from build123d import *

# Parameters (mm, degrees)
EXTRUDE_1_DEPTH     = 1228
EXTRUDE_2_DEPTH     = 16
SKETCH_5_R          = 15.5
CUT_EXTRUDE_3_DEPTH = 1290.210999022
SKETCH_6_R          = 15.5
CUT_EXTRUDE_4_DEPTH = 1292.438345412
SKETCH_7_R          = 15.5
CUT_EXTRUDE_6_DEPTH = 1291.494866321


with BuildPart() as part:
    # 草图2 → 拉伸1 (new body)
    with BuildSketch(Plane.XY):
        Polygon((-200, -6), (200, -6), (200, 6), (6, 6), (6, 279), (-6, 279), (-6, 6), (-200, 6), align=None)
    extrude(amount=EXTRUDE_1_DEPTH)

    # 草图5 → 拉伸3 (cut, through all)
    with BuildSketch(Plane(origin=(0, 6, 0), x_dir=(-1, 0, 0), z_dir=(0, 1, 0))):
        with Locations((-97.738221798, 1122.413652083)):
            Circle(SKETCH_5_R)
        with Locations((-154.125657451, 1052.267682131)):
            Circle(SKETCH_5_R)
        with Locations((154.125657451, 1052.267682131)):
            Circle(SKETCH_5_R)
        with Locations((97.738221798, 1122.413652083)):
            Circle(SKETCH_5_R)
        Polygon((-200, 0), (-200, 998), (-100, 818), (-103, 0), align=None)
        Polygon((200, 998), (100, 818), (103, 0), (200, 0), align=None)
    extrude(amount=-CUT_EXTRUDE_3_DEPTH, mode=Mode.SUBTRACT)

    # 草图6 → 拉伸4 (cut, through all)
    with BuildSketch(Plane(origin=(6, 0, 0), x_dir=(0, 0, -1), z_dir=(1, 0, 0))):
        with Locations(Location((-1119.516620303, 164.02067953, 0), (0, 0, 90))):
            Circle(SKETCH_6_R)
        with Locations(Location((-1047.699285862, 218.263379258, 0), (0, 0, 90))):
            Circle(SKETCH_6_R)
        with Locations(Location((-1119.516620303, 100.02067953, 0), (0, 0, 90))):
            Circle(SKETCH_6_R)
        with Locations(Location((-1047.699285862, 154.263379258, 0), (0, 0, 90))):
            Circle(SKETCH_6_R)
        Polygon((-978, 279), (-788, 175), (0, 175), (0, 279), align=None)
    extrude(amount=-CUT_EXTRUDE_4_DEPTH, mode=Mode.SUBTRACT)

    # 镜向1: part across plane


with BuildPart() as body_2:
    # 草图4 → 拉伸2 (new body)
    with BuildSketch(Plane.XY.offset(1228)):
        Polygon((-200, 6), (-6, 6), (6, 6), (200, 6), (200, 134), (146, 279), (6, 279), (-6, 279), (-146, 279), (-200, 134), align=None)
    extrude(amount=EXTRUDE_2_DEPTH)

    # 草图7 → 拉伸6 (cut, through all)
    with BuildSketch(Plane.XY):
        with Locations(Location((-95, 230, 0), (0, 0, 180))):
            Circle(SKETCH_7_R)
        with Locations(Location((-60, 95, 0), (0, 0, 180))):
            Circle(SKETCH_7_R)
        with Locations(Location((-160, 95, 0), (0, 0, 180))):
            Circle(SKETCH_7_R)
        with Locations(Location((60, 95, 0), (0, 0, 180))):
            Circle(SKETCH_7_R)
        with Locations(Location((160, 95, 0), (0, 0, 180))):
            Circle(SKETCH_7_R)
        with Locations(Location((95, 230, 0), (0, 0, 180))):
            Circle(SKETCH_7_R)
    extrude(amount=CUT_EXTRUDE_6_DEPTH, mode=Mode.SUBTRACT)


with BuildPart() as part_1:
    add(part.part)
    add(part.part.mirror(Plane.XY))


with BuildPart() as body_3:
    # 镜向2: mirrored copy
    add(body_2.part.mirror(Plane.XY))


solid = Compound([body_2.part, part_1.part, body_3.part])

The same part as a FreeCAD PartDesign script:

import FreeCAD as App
import Part
import Sketcher

V = App.Vector


def add_polygon(sketch, points):
    """Adds a closed chain of lines whose ends are joined by coincident constraints."""
    first, n = sketch.GeometryCount, len(points)
    for a, b in zip(points, points[1:] + points[:1]):
        sketch.addGeometry(Part.LineSegment(App.Vector(*a, 0), App.Vector(*b, 0)), False)
    for i in range(n):
        sketch.addConstraint(Sketcher.Constraint("Coincident", first + i, 2, first + (i + 1) % n, 1))

doc = App.newDocument("Part")
params = doc.addObject("Spreadsheet::Sheet", "Params")
for row, (alias, value) in enumerate([
    ("sketch1_width", "400 mm"),
    ("sketch1_width2", "194 mm"),
    ("sketch1_height", "273 mm"),
    ("pad1_length", "1228 mm"),
    ("sketch2_diameter", "31 mm"),
    ("sketch2_width", "97 mm"),
    ("sketch2_height", "998 mm"),
    ("sketch3_diameter", "31 mm"),
    ("sketch3_width", "104 mm"),
    ("sketch3_height", "788 mm"),
    ("sketch3_height2", "978 mm"),
    ("sketch4_width", "400 mm"),
    ("sketch4_width2", "292 mm"),
    ("sketch4_height", "128 mm"),
    ("pad2_length", "16 mm"),
    ("sketch5_diameter", "31 mm"),
], start=1):
    params.set(f"A{row}", alias)
    params.set(f"B{row}", "=" + value)
    params.setAlias(f"B{row}", alias)

body = doc.addObject("PartDesign::Body", "Body")

# Sketch on XY plane
sketch1 = body.newObject("Sketcher::SketchObject", "Sketch")
sketch1.AttachmentSupport = (doc.getObject("XY_Plane"), [""])
sketch1.MapMode = "FlatFace"
add_polygon(sketch1, [(-200, -6), (200, -6), (200, 6), (6, 6), (6, 279), (-6, 279), (-6, 6), (-200, 6)])  # lines 0-7
sketch1.addConstraint(Sketcher.Constraint("Horizontal", 0))
sketch1.addConstraint(Sketcher.Constraint("Vertical", 1))
sketch1.addConstraint(Sketcher.Constraint("Horizontal", 2))
sketch1.addConstraint(Sketcher.Constraint("Vertical", 3))
sketch1.addConstraint(Sketcher.Constraint("Horizontal", 4))
sketch1.addConstraint(Sketcher.Constraint("Vertical", 5))
sketch1.addConstraint(Sketcher.Constraint("Horizontal", 6))
sketch1.addConstraint(Sketcher.Constraint("Vertical", 7))
sketch1.addConstraint(Sketcher.Constraint("Symmetric", 0, 2, 6, 2, -1, 1))
sketch1.addConstraint(Sketcher.Constraint("Symmetric", 2, 2, 5, 2, -2))
sketch1.addConstraint(Sketcher.Constraint("Equal", 4, 1))
sketch1.addConstraint(Sketcher.Constraint("DistanceX", 0, 1, 0, 2, 400.0))
sketch1.addConstraint(Sketcher.Constraint("DistanceX", 2, 2, 2, 1, 194.0))
sketch1.addConstraint(Sketcher.Constraint("DistanceY", 3, 1, 3, 2, 273.0))
sketch1.setExpression("Constraints[19]", "Params.sketch1_width")
sketch1.setExpression("Constraints[20]", "Params.sketch1_width2")
sketch1.setExpression("Constraints[21]", "Params.sketch1_height")
pad1 = body.newObject("PartDesign::Pad", "Pad")
pad1.Profile = sketch1
pad1.setExpression("Length", "Params.pad1_length")

# Sketch on XZ plane
sketch2 = body.newObject("Sketcher::SketchObject", "Sketch001")
sketch2.AttachmentSupport = (doc.getObject("XZ_Plane"), [""])
sketch2.MapMode = "FlatFace"
sketch2.AttachmentOffset = App.Placement(V(0, 0, -6), App.Rotation())
sketch2.addGeometry(Part.Circle(V(97.738222, 1122.413652, 0), V(0, 0, 1), 15.5), False)  # 0
sketch2.addGeometry(Part.Circle(V(154.125657, 1052.267682, 0), V(0, 0, 1), 15.5), False)  # 1
sketch2.addGeometry(Part.Circle(V(-154.125657, 1052.267682, 0), V(0, 0, 1), 15.5), False)  # 2
sketch2.addGeometry(Part.Circle(V(-97.738222, 1122.413652, 0), V(0, 0, 1), 15.5), False)  # 3
add_polygon(sketch2, [(200, 998), (200, 0), (103, 0), (100, 818)])  # lines 4-7
add_polygon(sketch2, [(-200, 998), (-100, 818), (-103, 0), (-200, 0)])  # lines 8-11
sketch2.addConstraint(Sketcher.Constraint("Vertical", 4))
sketch2.addConstraint(Sketcher.Constraint("Horizontal", 5))
sketch2.addConstraint(Sketcher.Constraint("Horizontal", 10))
sketch2.addConstraint(Sketcher.Constraint("Vertical", 11))
sketch2.addConstraint(Sketcher.Constraint("Equal", 0, 1))
sketch2.addConstraint(Sketcher.Constraint("Equal", 1, 2))
sketch2.addConstraint(Sketcher.Constraint("Equal", 2, 3))
sketch2.addConstraint(Sketcher.Constraint("Symmetric", 5, 2, 9, 2, -1, 1))
sketch2.addConstraint(Sketcher.Constraint("Symmetric", 1, 3, 2, 3, -2))
sketch2.addConstraint(Sketcher.Constraint("Symmetric", 0, 3, 3, 3, -2))
sketch2.addConstraint(Sketcher.Constraint("Symmetric", 6, 2, 8, 2, -2))
sketch2.addConstraint(Sketcher.Constraint("Symmetric", 4, 2, 10, 2, -2))
sketch2.addConstraint(Sketcher.Constraint("Horizontal", 7, 2, 11, 2))
sketch2.addConstraint(Sketcher.Constraint("Diameter", 0, 31.0))
sketch2.addConstraint(Sketcher.Constraint("DistanceX", 5, 2, 5, 1, 97.0))
sketch2.addConstraint(Sketcher.Constraint("DistanceY", 4, 2, 4, 1, 998.0))
sketch2.addConstraint(Sketcher.Constraint("DistanceX", -1, 1, 4, 2, 200.0))
sketch2.addConstraint(Sketcher.Constraint("DistanceX", -1, 1, 6, 2, 100.0))
sketch2.addConstraint(Sketcher.Constraint("DistanceY", -1, 1, 6, 2, 818.0))
sketch2.addConstraint(Sketcher.Constraint("DistanceX", -1, 1, 0, 3, 97.738222))
sketch2.addConstraint(Sketcher.Constraint("DistanceY", 1, 3, 0, 3, 70.14597))
sketch2.addConstraint(Sketcher.Constraint("DistanceX", 2, 3, 0, 3, 251.863879))
sketch2.addConstraint(Sketcher.Constraint("DistanceY", -1, 1, 0, 3, 1122.413652))
sketch2.setExpression("Constraints[21]", "Params.sketch2_diameter")
sketch2.setExpression("Constraints[22]", "Params.sketch2_width")
sketch2.setExpression("Constraints[23]", "Params.sketch2_height")
pocket1 = body.newObject("PartDesign::Pocket", "Pocket")
pocket1.Profile = sketch2
pocket1.Type = "ThroughAll"
pocket1.Reversed = True

# Sketch on YZ plane
sketch3 = body.newObject("Sketcher::SketchObject", "Sketch002")
sketch3.AttachmentSupport = (doc.getObject("YZ_Plane"), [""])
sketch3.MapMode = "FlatFace"
sketch3.AttachmentOffset = App.Placement(V(0, 0, 6), App.Rotation())
sketch3.addGeometry(Part.Circle(V(164.02068, 1119.51662, 0), V(0, 0, 1), 15.5), False)  # 0
sketch3.addGeometry(Part.Circle(V(218.263379, 1047.699286, 0), V(0, 0, 1), 15.5), False)  # 1
sketch3.addGeometry(Part.Circle(V(100.02068, 1119.51662, 0), V(0, 0, 1), 15.5), False)  # 2
sketch3.addGeometry(Part.Circle(V(154.263379, 1047.699286, 0), V(0, 0, 1), 15.5), False)  # 3
add_polygon(sketch3, [(279, 978), (175, 788), (175, 0), (279, 0)])  # lines 4-7
sketch3.addConstraint(Sketcher.Constraint("Vertical", 5))
sketch3.addConstraint(Sketcher.Constraint("Horizontal", 6))
sketch3.addConstraint(Sketcher.Constraint("Vertical", 7))
sketch3.addConstraint(Sketcher.Constraint("Equal", 0, 1))
sketch3.addConstraint(Sketcher.Constraint("Equal", 1, 2))
sketch3.addConstraint(Sketcher.Constraint("Equal", 2, 3))
sketch3.addConstraint(Sketcher.Constraint("PointOnObject", 5, 2, -1))
sketch3.addConstraint(Sketcher.Constraint("Horizontal", 0, 3, 2, 3))
sketch3.addConstraint(Sketcher.Constraint("Horizontal", 1, 3, 3, 3))
sketch3.addConstraint(Sketcher.Constraint("Diameter", 0, 31.0))
sketch3.addConstraint(Sketcher.Constraint("DistanceX", 6, 1, 6, 2, 104.0))
sketch3.addConstraint(Sketcher.Constraint("DistanceY", 5, 2, 5, 1, 788.0))
sketch3.addConstraint(Sketcher.Constraint("DistanceY", 7, 1, 7, 2, 978.0))
sketch3.addConstraint(Sketcher.Constraint("DistanceX", -1, 1, 4, 2, 175.0))
sketch3.addConstraint(Sketcher.Constraint("DistanceX", 2, 3, 0, 3, 64.0))
sketch3.addConstraint(Sketcher.Constraint("DistanceX", 3, 3, 1, 3, 64.0))
sketch3.addConstraint(Sketcher.Constraint("DistanceX", 0, 3, 1, 3, 54.2427))
sketch3.addConstraint(Sketcher.Constraint("DistanceX", -1, 1, 0, 3, 164.02068))
sketch3.addConstraint(Sketcher.Constraint("DistanceY", -1, 1, 0, 3, 1119.51662))
sketch3.addConstraint(Sketcher.Constraint("DistanceY", -1, 1, 1, 3, 1047.699286))
sketch3.setExpression("Constraints[13]", "Params.sketch3_diameter")
sketch3.setExpression("Constraints[14]", "Params.sketch3_width")
sketch3.setExpression("Constraints[15]", "Params.sketch3_height")
sketch3.setExpression("Constraints[16]", "Params.sketch3_height2")
pocket2 = body.newObject("PartDesign::Pocket", "Pocket001")
pocket2.Profile = sketch3
pocket2.Type = "ThroughAll"
body2 = doc.addObject("PartDesign::Body", "Body001")

# Sketch on XY plane
sketch4 = body2.newObject("Sketcher::SketchObject", "Sketch003")
sketch4.AttachmentSupport = (doc.getObject("XY_Plane001"), [""])
sketch4.MapMode = "FlatFace"
sketch4.AttachmentOffset = App.Placement(V(0, 0, 1228), App.Rotation())
add_polygon(sketch4, [(-200, 6), (200, 6), (200, 134), (146, 279), (-146, 279), (-200, 134)])  # lines 0-5
sketch4.addConstraint(Sketcher.Constraint("Horizontal", 0))
sketch4.addConstraint(Sketcher.Constraint("Vertical", 1))
sketch4.addConstraint(Sketcher.Constraint("Horizontal", 3))
sketch4.addConstraint(Sketcher.Constraint("Vertical", 5))
sketch4.addConstraint(Sketcher.Constraint("Symmetric", 1, 2, 4, 2, -2))
sketch4.addConstraint(Sketcher.Constraint("Equal", 2, 4))
sketch4.addConstraint(Sketcher.Constraint("DistanceX", 0, 1, 0, 2, 400.0))
sketch4.addConstraint(Sketcher.Constraint("DistanceX", 3, 2, 3, 1, 292.0))
sketch4.addConstraint(Sketcher.Constraint("DistanceY", 1, 1, 1, 2, 128.0))
sketch4.addConstraint(Sketcher.Constraint("DistanceY", -1, 1, 0, 2, 6.0))
sketch4.addConstraint(Sketcher.Constraint("DistanceY", -1, 1, 2, 2, 279.0))
sketch4.setExpression("Constraints[12]", "Params.sketch4_width")
sketch4.setExpression("Constraints[13]", "Params.sketch4_width2")
sketch4.setExpression("Constraints[14]", "Params.sketch4_height")
pad2 = body2.newObject("PartDesign::Pad", "Pad001")
pad2.Profile = sketch4
pad2.setExpression("Length", "Params.pad2_length")

# Sketch on XY plane
sketch5 = body2.newObject("Sketcher::SketchObject", "Sketch004")
sketch5.AttachmentSupport = (doc.getObject("XY_Plane001"), [""])
sketch5.MapMode = "FlatFace"
sketch5.addGeometry(Part.Circle(V(-95, 230, 0), V(0, 0, 1), 15.5), False)
sketch5.addGeometry(Part.Circle(V(-60, 95, 0), V(0, 0, 1), 15.5), False)
sketch5.addGeometry(Part.Circle(V(-160, 95, 0), V(0, 0, 1), 15.5), False)
sketch5.addGeometry(Part.Circle(V(60, 95, 0), V(0, 0, 1), 15.5), False)
sketch5.addGeometry(Part.Circle(V(160, 95, 0), V(0, 0, 1), 15.5), False)
sketch5.addGeometry(Part.Circle(V(95, 230, 0), V(0, 0, 1), 15.5), False)
sketch5.addConstraint(Sketcher.Constraint("Equal", 0, 1))
sketch5.addConstraint(Sketcher.Constraint("Equal", 1, 2))
sketch5.addConstraint(Sketcher.Constraint("Equal", 2, 3))
sketch5.addConstraint(Sketcher.Constraint("Equal", 3, 4))
sketch5.addConstraint(Sketcher.Constraint("Equal", 4, 5))
sketch5.addConstraint(Sketcher.Constraint("Symmetric", 1, 3, 3, 3, -2))
sketch5.addConstraint(Sketcher.Constraint("Symmetric", 2, 3, 4, 3, -2))
sketch5.addConstraint(Sketcher.Constraint("Symmetric", 0, 3, 5, 3, -2))
sketch5.addConstraint(Sketcher.Constraint("Horizontal", 1, 3, 2, 3))
sketch5.addConstraint(Sketcher.Constraint("Diameter", 0, 31.0))
sketch5.addConstraint(Sketcher.Constraint("DistanceX", 0, 3, -1, 1, 95.0))
sketch5.addConstraint(Sketcher.Constraint("DistanceY", -1, 1, 0, 3, 230.0))
sketch5.addConstraint(Sketcher.Constraint("DistanceX", 1, 3, -1, 1, 60.0))
sketch5.addConstraint(Sketcher.Constraint("DistanceY", -1, 1, 1, 3, 95.0))
sketch5.addConstraint(Sketcher.Constraint("DistanceX", 2, 3, -1, 1, 160.0))
sketch5.setExpression("Constraints[9]", "Params.sketch5_diameter")
pocket3 = body2.newObject("PartDesign::Pocket", "Pocket002")
pocket3.Profile = sketch5
pocket3.Type = "ThroughAll"
pocket3.Reversed = True
body3 = doc.addObject("PartDesign::Body", "Body002")
doc.recompute()

body3.BaseFeature = body
doc.recompute()

mirroring = doc.addObject("Part::Mirroring", "Mirroring")
mirroring.Source = body
mirroring.Base = V(0, 0, 0)
mirroring.Normal = V(0, 0, 1)
body4 = doc.addObject("PartDesign::Body", "Body003")
body4.BaseFeature = mirroring
boolean = body3.newObject("PartDesign::Boolean", "Boolean")
boolean.Type = "Fuse"
boolean.addObjects([body4])
doc.recompute()
body5 = doc.addObject("PartDesign::Body", "Body004")
doc.recompute()

mirroring2 = doc.addObject("Part::Mirroring", "Mirroring001")
mirroring2.Source = body2
mirroring2.Base = V(0, 0, 0)
mirroring2.Normal = V(0, 0, 1)
body5.BaseFeature = mirroring2
doc.recompute()
mirroring.Visibility = False
mirroring2.Visibility = False

doc.recompute()
